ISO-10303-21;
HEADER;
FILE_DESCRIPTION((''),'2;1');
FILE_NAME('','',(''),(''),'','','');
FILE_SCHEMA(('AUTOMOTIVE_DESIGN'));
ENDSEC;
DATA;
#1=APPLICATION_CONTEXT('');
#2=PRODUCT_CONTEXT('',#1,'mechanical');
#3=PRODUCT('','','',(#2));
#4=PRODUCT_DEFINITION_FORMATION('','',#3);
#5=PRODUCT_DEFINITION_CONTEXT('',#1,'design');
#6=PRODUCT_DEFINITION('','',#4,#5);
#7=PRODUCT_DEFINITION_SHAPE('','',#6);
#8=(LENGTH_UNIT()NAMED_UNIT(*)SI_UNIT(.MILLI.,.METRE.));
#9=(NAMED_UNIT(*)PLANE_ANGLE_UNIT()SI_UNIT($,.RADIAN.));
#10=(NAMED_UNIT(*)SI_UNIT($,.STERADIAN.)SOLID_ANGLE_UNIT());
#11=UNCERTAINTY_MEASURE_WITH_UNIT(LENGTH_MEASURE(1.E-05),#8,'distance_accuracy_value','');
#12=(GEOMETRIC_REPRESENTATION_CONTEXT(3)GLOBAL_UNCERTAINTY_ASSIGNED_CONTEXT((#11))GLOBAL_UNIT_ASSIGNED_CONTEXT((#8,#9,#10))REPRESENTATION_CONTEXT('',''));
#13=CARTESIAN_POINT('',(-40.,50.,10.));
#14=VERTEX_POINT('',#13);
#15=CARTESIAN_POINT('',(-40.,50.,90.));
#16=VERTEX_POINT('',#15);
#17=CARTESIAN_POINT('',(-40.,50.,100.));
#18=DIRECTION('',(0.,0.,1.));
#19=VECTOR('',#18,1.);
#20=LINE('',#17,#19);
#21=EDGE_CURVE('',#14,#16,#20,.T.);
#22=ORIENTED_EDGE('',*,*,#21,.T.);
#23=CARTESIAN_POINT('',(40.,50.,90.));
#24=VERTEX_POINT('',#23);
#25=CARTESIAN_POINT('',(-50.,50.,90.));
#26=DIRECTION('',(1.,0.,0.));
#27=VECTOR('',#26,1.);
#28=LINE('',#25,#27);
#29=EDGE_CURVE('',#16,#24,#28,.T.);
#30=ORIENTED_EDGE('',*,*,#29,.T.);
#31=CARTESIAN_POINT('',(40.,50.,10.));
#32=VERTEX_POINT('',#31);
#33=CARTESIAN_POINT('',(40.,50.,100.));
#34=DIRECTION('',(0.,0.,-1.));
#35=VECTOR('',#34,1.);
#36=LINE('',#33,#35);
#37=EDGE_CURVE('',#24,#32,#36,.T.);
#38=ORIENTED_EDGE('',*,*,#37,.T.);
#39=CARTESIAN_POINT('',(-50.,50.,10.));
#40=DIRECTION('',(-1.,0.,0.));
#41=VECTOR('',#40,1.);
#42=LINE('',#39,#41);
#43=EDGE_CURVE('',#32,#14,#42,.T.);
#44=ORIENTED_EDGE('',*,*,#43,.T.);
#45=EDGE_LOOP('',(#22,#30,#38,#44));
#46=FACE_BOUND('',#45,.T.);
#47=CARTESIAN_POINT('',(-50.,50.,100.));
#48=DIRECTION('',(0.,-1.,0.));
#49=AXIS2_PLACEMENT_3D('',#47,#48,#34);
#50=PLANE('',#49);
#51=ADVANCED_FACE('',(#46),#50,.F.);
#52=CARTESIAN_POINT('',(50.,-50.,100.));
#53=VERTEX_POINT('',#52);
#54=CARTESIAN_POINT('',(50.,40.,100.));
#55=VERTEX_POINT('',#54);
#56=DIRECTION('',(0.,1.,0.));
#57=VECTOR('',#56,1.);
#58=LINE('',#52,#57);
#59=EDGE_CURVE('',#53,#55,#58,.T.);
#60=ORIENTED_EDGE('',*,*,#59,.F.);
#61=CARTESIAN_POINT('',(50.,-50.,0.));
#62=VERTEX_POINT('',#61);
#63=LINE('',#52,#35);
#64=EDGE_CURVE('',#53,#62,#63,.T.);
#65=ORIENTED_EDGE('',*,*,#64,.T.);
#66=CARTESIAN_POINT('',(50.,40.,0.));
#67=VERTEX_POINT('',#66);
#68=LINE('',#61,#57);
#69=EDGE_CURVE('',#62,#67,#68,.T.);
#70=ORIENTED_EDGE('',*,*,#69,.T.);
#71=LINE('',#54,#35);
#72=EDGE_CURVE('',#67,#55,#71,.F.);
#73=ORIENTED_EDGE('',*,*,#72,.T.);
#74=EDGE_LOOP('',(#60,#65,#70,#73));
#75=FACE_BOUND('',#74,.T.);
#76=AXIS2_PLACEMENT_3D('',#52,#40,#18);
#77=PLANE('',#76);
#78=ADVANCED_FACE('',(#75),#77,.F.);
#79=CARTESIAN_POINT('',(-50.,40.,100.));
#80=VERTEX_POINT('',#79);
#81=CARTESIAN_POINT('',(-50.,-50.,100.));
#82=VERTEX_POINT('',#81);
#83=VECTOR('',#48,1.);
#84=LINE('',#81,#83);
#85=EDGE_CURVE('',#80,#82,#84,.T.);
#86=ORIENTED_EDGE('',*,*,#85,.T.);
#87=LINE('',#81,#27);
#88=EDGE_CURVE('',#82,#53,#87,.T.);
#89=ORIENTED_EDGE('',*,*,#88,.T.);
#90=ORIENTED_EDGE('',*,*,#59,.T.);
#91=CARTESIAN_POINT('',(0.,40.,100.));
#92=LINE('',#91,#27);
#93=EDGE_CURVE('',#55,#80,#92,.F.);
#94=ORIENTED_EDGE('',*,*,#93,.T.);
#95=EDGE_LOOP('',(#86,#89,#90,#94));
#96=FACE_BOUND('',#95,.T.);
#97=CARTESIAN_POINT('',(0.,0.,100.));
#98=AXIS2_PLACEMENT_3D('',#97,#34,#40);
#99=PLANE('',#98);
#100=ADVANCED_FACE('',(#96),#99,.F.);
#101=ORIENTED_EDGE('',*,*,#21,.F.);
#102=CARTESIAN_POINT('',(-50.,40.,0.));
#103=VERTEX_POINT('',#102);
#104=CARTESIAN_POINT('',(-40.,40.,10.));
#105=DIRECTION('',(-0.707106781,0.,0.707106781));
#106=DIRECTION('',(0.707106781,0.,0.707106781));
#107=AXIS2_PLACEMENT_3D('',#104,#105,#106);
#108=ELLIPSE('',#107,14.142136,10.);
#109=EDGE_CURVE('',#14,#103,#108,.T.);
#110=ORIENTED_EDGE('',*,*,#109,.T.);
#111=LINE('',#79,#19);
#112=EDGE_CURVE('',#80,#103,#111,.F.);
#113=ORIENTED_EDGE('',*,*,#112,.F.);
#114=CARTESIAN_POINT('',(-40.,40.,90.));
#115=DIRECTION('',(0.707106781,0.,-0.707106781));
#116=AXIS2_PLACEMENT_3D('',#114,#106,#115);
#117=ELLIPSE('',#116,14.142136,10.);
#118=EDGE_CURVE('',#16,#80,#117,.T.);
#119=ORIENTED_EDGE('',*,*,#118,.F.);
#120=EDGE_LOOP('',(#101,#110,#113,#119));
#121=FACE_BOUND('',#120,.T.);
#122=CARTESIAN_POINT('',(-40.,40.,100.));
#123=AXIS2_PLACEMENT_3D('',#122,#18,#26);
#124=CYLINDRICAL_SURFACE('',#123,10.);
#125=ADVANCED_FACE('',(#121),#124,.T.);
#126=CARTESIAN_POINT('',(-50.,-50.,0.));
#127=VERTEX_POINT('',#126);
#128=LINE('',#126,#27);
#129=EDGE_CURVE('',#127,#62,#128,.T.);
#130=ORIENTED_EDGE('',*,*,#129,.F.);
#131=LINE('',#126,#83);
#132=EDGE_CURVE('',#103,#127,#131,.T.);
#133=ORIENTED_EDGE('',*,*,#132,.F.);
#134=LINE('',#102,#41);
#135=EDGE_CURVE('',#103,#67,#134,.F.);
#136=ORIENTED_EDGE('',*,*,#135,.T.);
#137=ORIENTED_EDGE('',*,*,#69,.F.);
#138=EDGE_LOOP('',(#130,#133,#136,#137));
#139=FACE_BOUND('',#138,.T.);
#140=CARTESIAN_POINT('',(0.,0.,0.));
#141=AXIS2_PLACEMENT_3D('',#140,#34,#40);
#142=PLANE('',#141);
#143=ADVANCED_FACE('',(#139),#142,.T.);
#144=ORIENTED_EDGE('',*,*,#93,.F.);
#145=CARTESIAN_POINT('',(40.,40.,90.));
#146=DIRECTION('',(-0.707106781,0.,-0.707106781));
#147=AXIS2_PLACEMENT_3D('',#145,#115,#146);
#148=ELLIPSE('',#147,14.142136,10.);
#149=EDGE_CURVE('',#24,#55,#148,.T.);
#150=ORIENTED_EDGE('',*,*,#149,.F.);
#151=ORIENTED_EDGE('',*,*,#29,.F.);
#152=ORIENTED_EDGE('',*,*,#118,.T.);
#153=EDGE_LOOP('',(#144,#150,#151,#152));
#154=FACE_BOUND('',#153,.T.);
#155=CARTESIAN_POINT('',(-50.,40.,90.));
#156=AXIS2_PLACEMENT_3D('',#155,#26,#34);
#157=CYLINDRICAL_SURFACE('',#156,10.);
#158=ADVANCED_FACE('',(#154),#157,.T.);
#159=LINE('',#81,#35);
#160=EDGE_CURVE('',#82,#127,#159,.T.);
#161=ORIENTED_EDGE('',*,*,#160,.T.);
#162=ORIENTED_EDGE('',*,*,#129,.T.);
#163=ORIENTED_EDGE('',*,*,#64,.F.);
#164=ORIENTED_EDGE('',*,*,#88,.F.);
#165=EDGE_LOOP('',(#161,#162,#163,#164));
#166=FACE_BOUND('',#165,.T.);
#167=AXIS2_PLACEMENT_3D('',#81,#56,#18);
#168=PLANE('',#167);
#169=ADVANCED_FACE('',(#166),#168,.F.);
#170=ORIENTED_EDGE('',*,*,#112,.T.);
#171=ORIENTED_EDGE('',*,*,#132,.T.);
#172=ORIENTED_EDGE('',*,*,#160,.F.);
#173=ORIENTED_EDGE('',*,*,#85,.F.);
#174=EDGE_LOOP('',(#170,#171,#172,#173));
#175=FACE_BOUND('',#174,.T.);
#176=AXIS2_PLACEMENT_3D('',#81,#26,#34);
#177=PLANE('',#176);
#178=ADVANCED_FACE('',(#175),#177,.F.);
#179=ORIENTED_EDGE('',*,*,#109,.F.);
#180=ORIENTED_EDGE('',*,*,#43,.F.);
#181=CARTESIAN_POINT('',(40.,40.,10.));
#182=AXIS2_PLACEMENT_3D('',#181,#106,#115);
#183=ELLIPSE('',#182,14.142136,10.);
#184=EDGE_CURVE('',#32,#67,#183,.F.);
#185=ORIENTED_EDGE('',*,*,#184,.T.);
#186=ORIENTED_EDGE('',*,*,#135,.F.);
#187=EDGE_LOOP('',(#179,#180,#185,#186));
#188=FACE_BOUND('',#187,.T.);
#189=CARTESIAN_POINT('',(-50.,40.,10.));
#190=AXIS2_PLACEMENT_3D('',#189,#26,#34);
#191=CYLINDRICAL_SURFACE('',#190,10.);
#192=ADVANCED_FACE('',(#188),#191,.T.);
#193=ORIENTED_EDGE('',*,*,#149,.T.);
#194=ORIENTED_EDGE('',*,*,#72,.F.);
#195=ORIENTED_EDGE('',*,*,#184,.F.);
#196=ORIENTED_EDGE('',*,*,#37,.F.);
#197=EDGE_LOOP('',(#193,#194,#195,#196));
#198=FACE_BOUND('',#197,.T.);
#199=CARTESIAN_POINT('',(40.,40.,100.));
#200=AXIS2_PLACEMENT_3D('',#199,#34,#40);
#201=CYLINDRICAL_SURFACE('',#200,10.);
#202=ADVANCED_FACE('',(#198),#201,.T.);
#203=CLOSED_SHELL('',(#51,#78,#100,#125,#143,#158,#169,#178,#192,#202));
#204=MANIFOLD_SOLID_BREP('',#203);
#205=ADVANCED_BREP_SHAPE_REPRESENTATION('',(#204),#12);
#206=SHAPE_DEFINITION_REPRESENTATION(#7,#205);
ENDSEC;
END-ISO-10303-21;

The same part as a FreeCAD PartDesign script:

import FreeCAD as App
import Part
import Sketcher
from FreeCAD import Vector


def edges_at(feature, points):
    """Names of the edges that pass closest to the given points."""
    edges = feature.Shape.Edges
    near = lambda p: min(range(len(edges)), key=lambda i: edges[i].distToShape(Part.Vertex(*p))[0])
    return sorted({f"Edge{near(p) + 1}" for p in points})

doc = App.newDocument("Part")
body = doc.addObject("PartDesign::Body", "Body")

sketch1 = body.newObject("Sketcher::SketchObject", "Sketch")
sketch1.AttachmentSupport = (doc.getObject("XY_Plane"), [""])
sketch1.MapMode = "FlatFace"
sketch1.addGeometry(Part.LineSegment(Vector(-50, 50, 0), Vector(-50, -50, 0)), False)
sketch1.addGeometry(Part.LineSegment(Vector(-50, -50, 0), Vector(50, -50, 0)), False)
sketch1.addGeometry(Part.LineSegment(Vector(50, -50, 0), Vector(50, 50, 0)), False)
sketch1.addGeometry(Part.LineSegment(Vector(50, 50, 0), Vector(-50, 50, 0)), False)
sketch1.addConstraint(Sketcher.Constraint("Coincident", 0, 2, 1, 1))
sketch1.addConstraint(Sketcher.Constraint("Coincident", 1, 2, 2, 1))
sketch1.addConstraint(Sketcher.Constraint("Coincident", 2, 2, 3, 1))
sketch1.addConstraint(Sketcher.Constraint("Coincident", 3, 2, 0, 1))
sketch1.addConstraint(Sketcher.Constraint("Vertical", 0))
sketch1.addConstraint(Sketcher.Constraint("Horizontal", 1))
sketch1.addConstraint(Sketcher.Constraint("Vertical", 2))
sketch1.addConstraint(Sketcher.Constraint("Horizontal", 3))
sketch1.addConstraint(Sketcher.Constraint("Symmetric", 0, 2, 2, 2, -1, 1))
sketch1.addConstraint(Sketcher.Constraint("Equal", 3, 0))
sketch1.addConstraint(Sketcher.Constraint("DistanceX", 1, 1, 1, 2, 100.0))
pad1 = body.newObject("PartDesign::Pad", "Pad")
pad1.Profile = sketch1
pad1.Length = 100
doc.recompute()

fillet = body.newObject("PartDesign::Fillet", "Fillet")
fillet.Base = (pad1, edges_at(pad1, [
    (0, 50, 0),
    (-50, 50, 50),
    (50, 50, 50),
    (0, 50, 100),
]))
fillet.Radius = 10

doc.recompute()
